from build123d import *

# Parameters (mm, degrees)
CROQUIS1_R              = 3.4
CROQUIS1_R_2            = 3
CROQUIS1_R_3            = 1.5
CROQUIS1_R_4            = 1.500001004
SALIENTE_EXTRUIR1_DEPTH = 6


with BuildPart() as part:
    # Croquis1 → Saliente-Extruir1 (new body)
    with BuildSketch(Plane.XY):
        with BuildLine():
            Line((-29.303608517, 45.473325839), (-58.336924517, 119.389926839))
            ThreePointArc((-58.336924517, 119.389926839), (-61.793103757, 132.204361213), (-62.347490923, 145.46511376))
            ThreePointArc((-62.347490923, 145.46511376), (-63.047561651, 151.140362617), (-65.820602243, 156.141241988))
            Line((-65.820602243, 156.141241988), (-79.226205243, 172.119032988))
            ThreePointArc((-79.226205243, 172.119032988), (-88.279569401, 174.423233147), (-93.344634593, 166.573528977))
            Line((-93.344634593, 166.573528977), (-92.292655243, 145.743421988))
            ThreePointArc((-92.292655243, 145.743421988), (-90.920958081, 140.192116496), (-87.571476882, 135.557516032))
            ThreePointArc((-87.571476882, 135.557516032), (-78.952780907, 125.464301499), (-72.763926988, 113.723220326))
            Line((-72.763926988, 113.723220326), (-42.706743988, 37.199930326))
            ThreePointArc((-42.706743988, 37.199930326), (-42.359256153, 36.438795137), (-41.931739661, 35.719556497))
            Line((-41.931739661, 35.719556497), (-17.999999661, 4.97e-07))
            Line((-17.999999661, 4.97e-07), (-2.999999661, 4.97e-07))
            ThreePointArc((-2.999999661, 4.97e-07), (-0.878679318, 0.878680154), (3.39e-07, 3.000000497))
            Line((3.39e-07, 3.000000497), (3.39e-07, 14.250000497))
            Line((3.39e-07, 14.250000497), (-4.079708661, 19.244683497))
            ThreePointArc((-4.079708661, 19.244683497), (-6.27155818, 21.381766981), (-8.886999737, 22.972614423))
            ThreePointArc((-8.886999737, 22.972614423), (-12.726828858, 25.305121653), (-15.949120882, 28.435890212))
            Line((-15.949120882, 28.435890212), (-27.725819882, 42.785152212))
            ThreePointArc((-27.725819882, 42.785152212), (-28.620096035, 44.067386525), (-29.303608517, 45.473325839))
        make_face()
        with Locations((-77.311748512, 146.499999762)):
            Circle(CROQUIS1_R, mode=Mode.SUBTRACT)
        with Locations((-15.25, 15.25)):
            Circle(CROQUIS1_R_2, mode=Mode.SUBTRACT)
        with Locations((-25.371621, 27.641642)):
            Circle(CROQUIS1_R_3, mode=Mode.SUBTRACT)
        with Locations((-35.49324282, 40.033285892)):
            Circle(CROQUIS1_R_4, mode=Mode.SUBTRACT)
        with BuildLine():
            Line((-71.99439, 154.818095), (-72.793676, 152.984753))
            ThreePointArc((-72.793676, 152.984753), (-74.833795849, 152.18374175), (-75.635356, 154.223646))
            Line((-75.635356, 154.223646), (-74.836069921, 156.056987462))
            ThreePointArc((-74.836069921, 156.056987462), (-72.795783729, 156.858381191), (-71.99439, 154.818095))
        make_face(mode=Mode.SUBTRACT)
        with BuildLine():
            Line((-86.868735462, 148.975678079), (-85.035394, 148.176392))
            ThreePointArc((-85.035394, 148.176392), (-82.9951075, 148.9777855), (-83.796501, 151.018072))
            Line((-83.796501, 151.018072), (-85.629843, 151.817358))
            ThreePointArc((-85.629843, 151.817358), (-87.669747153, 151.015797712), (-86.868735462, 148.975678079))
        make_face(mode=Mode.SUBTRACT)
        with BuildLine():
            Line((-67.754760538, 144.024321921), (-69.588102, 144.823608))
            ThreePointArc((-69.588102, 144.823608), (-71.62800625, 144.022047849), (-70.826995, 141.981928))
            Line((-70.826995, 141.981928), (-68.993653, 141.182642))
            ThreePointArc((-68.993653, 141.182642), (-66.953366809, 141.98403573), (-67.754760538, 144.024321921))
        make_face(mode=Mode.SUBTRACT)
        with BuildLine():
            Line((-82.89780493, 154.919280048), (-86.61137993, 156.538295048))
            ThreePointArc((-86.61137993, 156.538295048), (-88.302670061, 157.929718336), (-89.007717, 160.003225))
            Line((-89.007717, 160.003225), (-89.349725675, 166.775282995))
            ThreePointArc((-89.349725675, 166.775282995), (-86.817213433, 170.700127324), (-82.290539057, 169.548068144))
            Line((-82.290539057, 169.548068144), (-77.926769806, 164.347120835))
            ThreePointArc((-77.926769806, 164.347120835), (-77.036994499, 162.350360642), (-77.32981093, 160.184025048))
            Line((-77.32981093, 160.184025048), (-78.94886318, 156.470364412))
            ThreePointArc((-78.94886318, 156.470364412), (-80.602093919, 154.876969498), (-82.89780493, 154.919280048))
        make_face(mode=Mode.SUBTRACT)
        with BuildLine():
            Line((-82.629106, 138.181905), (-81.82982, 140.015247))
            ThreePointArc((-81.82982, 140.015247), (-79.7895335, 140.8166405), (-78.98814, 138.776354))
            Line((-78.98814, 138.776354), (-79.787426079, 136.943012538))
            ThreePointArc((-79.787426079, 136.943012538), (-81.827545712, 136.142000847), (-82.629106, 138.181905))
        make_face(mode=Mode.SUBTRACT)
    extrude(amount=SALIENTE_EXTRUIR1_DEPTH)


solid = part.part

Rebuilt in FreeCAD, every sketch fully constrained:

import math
import FreeCAD as App
import Part
import Sketcher

V = App.Vector
Q = App.Units.Quantity

doc = App.newDocument("Part")
body = doc.addObject("PartDesign::Body", "Body")

sketch1 = body.newObject("Sketcher::SketchObject", "Sketch")
sketch1.AttachmentSupport = (doc.getObject("XY_Plane"), [""])
sketch1.MapMode = "FlatFace"
sketch1.addGeometry([
    Part.LineSegment(V(-29.3, 45.5, 0), V(-58.3, 119.4, 0)),
    Part.ArcOfCircle(Part.Circle(V(-2.5, 141.3, 0), V(0, 0, 1), 60), math.radians(176), math.radians(201)),
    Part.ArcOfCircle(Part.Circle(V(-77.3, 146.5, 0), V(0, 0, 1), 15), math.radians(-4), math.radians(40)),
    Part.LineSegment(V(-65.8, 156.1, 0), V(-79.2, 172.1, 0)),
    Part.ArcOfCircle(Part.Circle(V(-85.4, 167, 0), V(0, 0, 1), 8), math.radians(40), math.radians(183)),
    Part.LineSegment(V(-93.3, 166.6, 0), V(-92.3, 145.7, 0)),
    Part.ArcOfCircle(Part.Circle(V(-77.3, 146.5, 0), V(0, 0, 1), 15), math.radians(-177), math.radians(-133)),
    Part.ArcOfCircle(Part.Circle(V(-128.6, 91.8, 0), V(0, 0, 1), 60), math.radians(21), math.radians(47)),
    Part.LineSegment(V(-72.8, 113.7, 0), V(-42.7, 37.2, 0)),
    Part.ArcOfCircle(Part.Circle(V(-35.5, 40, 0), V(0, 0, 1), 7.8), math.radians(-158.56), math.radians(-146.18)),
    Part.LineSegment(V(-41.9, 35.7, 0), V(-18, 0, 0)),
    Part.LineSegment(V(-18, 0, 0), V(-3, 0, 0)),
    Part.ArcOfCircle(Part.Circle(V(-3, 3, 0), V(0, 0, 1), 3), math.radians(-90), math.radians(0)),
    Part.LineSegment(V(0, 3, 0), V(0, 14.3, 0)),
    Part.LineSegment(V(0, 14.3, 0), V(-4.1, 19.2, 0)),
    Part.ArcOfCircle(Part.Circle(V(-14.6, 10.7, 0), V(0, 0, 1), 13.6), math.radians(39), math.radians(65)),
    Part.ArcOfCircle(Part.Circle(V(-0.5, 41.1, 0), V(0, 0, 1), 20), math.radians(-141), math.radians(-115)),
    Part.LineSegment(V(-15.9, 28.4, 0), V(-27.7, 42.8, 0)),
    Part.ArcOfCircle(Part.Circle(V(-20, 49.1, 0), V(0, 0, 1), 10), math.radians(-158.56), math.radians(-140.62)),
    Part.Circle(V(-35.5, 40, 0), V(0, 0, 1), 1.5),
    Part.Circle(V(-25.4, 27.6, 0), V(0, 0, 1), 1.5),
    Part.Circle(V(-15.2, 15.2, 0), V(0, 0, 1), 3),
    Part.ArcOfCircle(Part.Circle(V(-81.2, 137.6, 0), V(0, 0, 1), 1.6), math.radians(156), math.radians(336)),
    Part.LineSegment(V(-82.6, 138.2, 0), V(-81.8, 140, 0)),
    Part.ArcOfCircle(Part.Circle(V(-80.4, 139.4, 0), V(0, 0, 1), 1.6), math.radians(-24), math.radians(156)),
    Part.LineSegment(V(-79, 138.8, 0), V(-79.8, 136.9, 0)),
    Part.LineSegment(V(-85, 148.2, 0), V(-86.9, 149, 0)),
    Part.ArcOfCircle(Part.Circle(V(-86.2, 150.4, 0), V(0, 0, 1), 1.6), math.radians(66), math.radians(246)),
    Part.LineSegment(V(-85.6, 151.8, 0), V(-83.8, 151, 0)),
    Part.ArcOfCircle(Part.Circle(V(-84.4, 149.6, 0), V(0, 0, 1), 1.6), math.radians(-114), math.radians(66)),
    Part.Circle(V(-77.3, 146.5, 0), V(0, 0, 1), 3.4),
    Part.ArcOfCircle(Part.Circle(V(-81.7, 157.7, 0), V(0, 0, 1), 3), math.radians(-114), math.radians(-24)),
    Part.LineSegment(V(-82.9, 154.9, 0), V(-86.6, 156.5, 0)),
    Part.ArcOfCircle(Part.Circle(V(-85, 160.2, 0), V(0, 0, 1), 4), math.radians(-177), math.radians(-114)),
    Part.LineSegment(V(-89, 160, 0), V(-89.3, 166.8, 0)),
    Part.ArcOfCircle(Part.Circle(V(-85.4, 167, 0), V(0, 0, 1), 4), math.radians(40), math.radians(183)),
    Part.LineSegment(V(-82.3, 169.5, 0), V(-77.9, 164.3, 0)),
    Part.ArcOfCircle(Part.Circle(V(-81, 161.8, 0), V(0, 0, 1), 4), math.radians(-24), math.radians(40)),
    Part.LineSegment(V(-77.3, 160.2, 0), V(-78.9, 156.5, 0)),
    Part.ArcOfCircle(Part.Circle(V(-73.4, 155.4, 0), V(0, 0, 1), 1.5), math.radians(-24), math.radians(156)),
    Part.LineSegment(V(-72, 154.8, 0), V(-72.8, 153, 0)),
    Part.ArcOfCircle(Part.Circle(V(-74.2, 153.6, 0), V(0, 0, 1), 1.6), math.radians(156), math.radians(336)),
    Part.LineSegment(V(-75.6, 154.2, 0), V(-74.8, 156.1, 0)),
    Part.LineSegment(V(-69.6, 144.8, 0), V(-67.8, 144, 0)),
    Part.ArcOfCircle(Part.Circle(V(-68.4, 142.6, 0), V(0, 0, 1), 1.5), math.radians(-114), math.radians(66)),
    Part.LineSegment(V(-69, 141.2, 0), V(-70.8, 142, 0)),
    Part.ArcOfCircle(Part.Circle(V(-70.2, 143.4, 0), V(0, 0, 1), 1.6), math.radians(66), math.radians(246)),
], False)
sketch1.addConstraint([
    Sketcher.Constraint("Tangent", 0, 2, 1, 2),
    Sketcher.Constraint("Tangent", 1, 1, 2, 1),
    Sketcher.Constraint("Tangent", 2, 2, 3, 1),
    Sketcher.Constraint("Tangent", 3, 2, 4, 1),
    Sketcher.Constraint("Tangent", 4, 2, 5, 1),
    Sketcher.Constraint("Tangent", 5, 2, 6, 1),
    Sketcher.Constraint("Tangent", 6, 2, 7, 2),
    Sketcher.Constraint("Tangent", 7, 1, 8, 1),
    Sketcher.Constraint("Tangent", 8, 2, 9, 1),
    Sketcher.Constraint("Tangent", 9, 2, 10, 1),
    Sketcher.Constraint("Coincident", 10, 2, 11, 1),
    Sketcher.Constraint("Tangent", 11, 2, 12, 1),
    Sketcher.Constraint("Tangent", 12, 2, 13, 1),
    Sketcher.Constraint("Coincident", 13, 2, 14, 1),
    Sketcher.Constraint("Tangent", 14, 2, 15, 1),
    Sketcher.Constraint("Tangent", 15, 2, 16, 2),
    Sketcher.Constraint("Tangent", 16, 1, 17, 1),
    Sketcher.Constraint("Tangent", 17, 2, 18, 2),
    Sketcher.Constraint("Tangent", 18, 1, 0, 1),
    Sketcher.Constraint("Coincident", 22, 1, 23, 1),
    Sketcher.Constraint("Tangent", 23, 2, 24, 2),
    Sketcher.Constraint("Tangent", 24, 1, 25, 1),
    Sketcher.Constraint("Coincident", 25, 2, 22, 2),
    Sketcher.Constraint("Coincident", 26, 2, 27, 2),
    Sketcher.Constraint("Coincident", 27, 1, 28, 1),
    Sketcher.Constraint("Tangent", 28, 2, 29, 2),
    Sketcher.Constraint("Tangent", 29, 1, 26, 1),
    Sketcher.Constraint("Tangent", 31, 1, 32, 1),
    Sketcher.Constraint("Tangent", 32, 2, 33, 2),
    Sketcher.Constraint("Tangent", 33, 1, 34, 1),
    Sketcher.Constraint("Tangent", 34, 2, 35, 2),
    Sketcher.Constraint("Tangent", 35, 1, 36, 1),
    Sketcher.Constraint("Coincident", 36, 2, 37, 2),
    Sketcher.Constraint("Tangent", 37, 1, 38, 1),
    Sketcher.Constraint("Tangent", 38, 2, 31, 2),
    Sketcher.Constraint("Tangent", 39, 1, 40, 1),
    Sketcher.Constraint("Coincident", 40, 2, 41, 2),
    Sketcher.Constraint("Coincident", 41, 1, 42, 1),
    Sketcher.Constraint("Tangent", 42, 2, 39, 2),
    Sketcher.Constraint("Tangent", 43, 2, 44, 2),
    Sketcher.Constraint("Tangent", 44, 1, 45, 1),
    Sketcher.Constraint("Coincident", 45, 2, 46, 2),
    Sketcher.Constraint("Coincident", 46, 1, 43, 1),
    Sketcher.Constraint("Horizontal", 11),
    Sketcher.Constraint("Vertical", 13),
    Sketcher.Constraint("Coincident", 6, 3, 2, 3),
    Sketcher.Constraint("Coincident", 19, 3, 9, 3),
    Sketcher.Constraint("Coincident", 30, 3, 2, 3),
    Sketcher.Constraint("Coincident", 35, 3, 4, 3),
    Sketcher.Constraint("Equal", 2, 6),
    Sketcher.Constraint("Equal", 1, 7),
    Sketcher.Constraint("Equal", 19, 20),
    Sketcher.Constraint("Equal", 12, 21),
    Sketcher.Constraint("Equal", 22, 24),
    Sketcher.Constraint("Equal", 24, 27),
    Sketcher.Constraint("Equal", 27, 29),
    Sketcher.Constraint("Equal", 21, 31),
    Sketcher.Constraint("Equal", 33, 35),
    Sketcher.Constraint("Equal", 35, 37),
    Sketcher.Constraint("Equal", 29, 39),
    Sketcher.Constraint("Equal", 39, 41),
    Sketcher.Constraint("Equal", 41, 44),
    Sketcher.Constraint("Equal", 44, 46),
    Sketcher.Constraint("PointOnObject", 10, 2, -1),
    Sketcher.Constraint("PointOnObject", 12, 2, -2),
    Sketcher.Constraint("Parallel", 0, 8),
    Sketcher.Constraint("Perpendicular", 25, 26),
    Sketcher.Constraint("Parallel", 28, 32),
    Sketcher.Constraint("Parallel", 5, 34),
    Sketcher.Constraint("Perpendicular", 32, 38),
    Sketcher.Constraint("Parallel", 38, 40),
    Sketcher.Constraint("Perpendicular", 42, 43),
    Sketcher.Constraint("Equal", 23, 25),
    Sketcher.Constraint("Equal", 25, 26),
    Sketcher.Constraint("Equal", 26, 28),
    Sketcher.Constraint("Equal", 28, 40),
    Sketcher.Constraint("Equal", 40, 42),
    Sketcher.Constraint("Equal", 42, 43),
    Sketcher.Constraint("Equal", 43, 45),
    Sketcher.Constraint("Diameter", 20, Q("3 mm")),
    Sketcher.Constraint("Diameter", 21, Q("6 mm")),
    Sketcher.Constraint("Radius", 1, Q("60 mm")),
    Sketcher.Constraint("Radius", 2, Q("15 mm")),
    Sketcher.Constraint("Radius", 4, Q("8 mm")),
    Sketcher.Constraint("Radius", 16, Q("20 mm")),
    Sketcher.Constraint("Radius", 18, Q("10 mm")),
    Sketcher.Constraint("Radius", 33, Q("4 mm")),
    Sketcher.Constraint("Diameter", 30, Q("6.8 mm")),
    Sketcher.Constraint("DistanceX", 11, 1, 11, 2, Q("15 mm")),
    Sketcher.Constraint("Radius", 9, Q("7.75 mm")),
    Sketcher.Constraint("Radius", 22, Q("1.55 mm")),
    Sketcher.Constraint("Distance", 23, Q("2 mm")),
    Sketcher.Constraint("DistanceY", 13, 1, 13, 2, Q("11.25 mm")),
    Sketcher.Constraint("DistanceY", -1, 1, 2, 3, Q("146.5 mm")),
    Sketcher.Constraint("DistanceX", 21, 3, -1, 1, Q("15.25 mm")),
    Sketcher.Constraint("DistanceY", -1, 1, 21, 3, Q("15.25 mm")),
    Sketcher.Constraint("DistanceX", 15, 2, -1, 1, Q("8.887 mm")),
    Sketcher.Constraint("Radius", 15, Q("13.557398 mm")),
    Sketcher.Constraint("Distance", 14, Q("6.449099 mm")),
    Sketcher.Constraint("DistanceX", 22, 3, -1, 1, Q("81.208099 mm")),
    Sketcher.Constraint("DistanceY", -1, 1, 24, 3, Q("139.395801 mm")),
    Sketcher.Constraint("DistanceY", -1, 1, 46, 3, Q("143.402601 mm")),
    Sketcher.Constraint("DistanceX", 28, 2, -1, 1, Q("83.796501 mm")),
    Sketcher.Constraint("DistanceX", 46, 1, -1, 1, Q("69.588102 mm")),
    Sketcher.Constraint("Distance", 10, Q("42.995521 mm")),
    Sketcher.Constraint("Distance", 17, Q("18.563188 mm")),
    Sketcher.Constraint("Distance", 34, Q("6.780689 mm")),
    Sketcher.Constraint("DistanceX", 1, 3, -1, 1, Q("2.49046 mm")),
    Sketcher.Constraint("DistanceY", -1, 1, 1, 3, Q("141.325569 mm")),
    Sketcher.Constraint("DistanceX", 7, 3, -1, 1, Q("128.610391 mm")),
    Sketcher.Constraint("DistanceX", 15, 3, -1, 1, Q("14.57961 mm")),
    Sketcher.Constraint("DistanceX", 20, 3, -1, 1, Q("25.371621 mm")),
    Sketcher.Constraint("DistanceY", -1, 1, 22, 3, Q("137.562841 mm")),
    Sketcher.Constraint("DistanceX", 24, 3, -1, 1, Q("80.40898 mm")),
    Sketcher.Constraint("DistanceY", -1, 1, 27, 3, Q("150.396351 mm")),
    Sketcher.Constraint("DistanceY", -1, 1, 29, 3, Q("149.597232 mm")),
    Sketcher.Constraint("DistanceX", 33, 3, -1, 1, Q("85.012808 mm")),
    Sketcher.Constraint("DistanceY", -1, 1, 33, 3, Q("160.204979 mm")),
    Sketcher.Constraint("DistanceX", 39, 3, -1, 1, Q("73.41523 mm")),
    Sketcher.Constraint("DistanceY", -1, 1, 39, 3, Q("155.437541 mm")),
    Sketcher.Constraint("DistanceX", 41, 3, -1, 1, Q("74.214349 mm")),
    Sketcher.Constraint("DistanceY", -1, 1, 44, 3, Q("142.603482 mm")),
    Sketcher.Constraint("DistanceY", -1, 1, 7, 1, Q("113.72322 mm")),
    Sketcher.Constraint("DistanceY", -1, 1, 31, 1, Q("154.91928 mm")),
    Sketcher.Constraint("DistanceX", 35, 1, -1, 1, Q("82.290539 mm")),
    Sketcher.Constraint("DistanceX", 36, 2, -1, 1, Q("77.92677 mm")),
    Sketcher.Constraint("DistanceY", -1, 1, 20, 3, Q("27.641642 mm")),
])
pad1 = body.newObject("PartDesign::Pad", "Pad")
pad1.Profile = sketch1
pad1.Length = 6

doc.recompute()
